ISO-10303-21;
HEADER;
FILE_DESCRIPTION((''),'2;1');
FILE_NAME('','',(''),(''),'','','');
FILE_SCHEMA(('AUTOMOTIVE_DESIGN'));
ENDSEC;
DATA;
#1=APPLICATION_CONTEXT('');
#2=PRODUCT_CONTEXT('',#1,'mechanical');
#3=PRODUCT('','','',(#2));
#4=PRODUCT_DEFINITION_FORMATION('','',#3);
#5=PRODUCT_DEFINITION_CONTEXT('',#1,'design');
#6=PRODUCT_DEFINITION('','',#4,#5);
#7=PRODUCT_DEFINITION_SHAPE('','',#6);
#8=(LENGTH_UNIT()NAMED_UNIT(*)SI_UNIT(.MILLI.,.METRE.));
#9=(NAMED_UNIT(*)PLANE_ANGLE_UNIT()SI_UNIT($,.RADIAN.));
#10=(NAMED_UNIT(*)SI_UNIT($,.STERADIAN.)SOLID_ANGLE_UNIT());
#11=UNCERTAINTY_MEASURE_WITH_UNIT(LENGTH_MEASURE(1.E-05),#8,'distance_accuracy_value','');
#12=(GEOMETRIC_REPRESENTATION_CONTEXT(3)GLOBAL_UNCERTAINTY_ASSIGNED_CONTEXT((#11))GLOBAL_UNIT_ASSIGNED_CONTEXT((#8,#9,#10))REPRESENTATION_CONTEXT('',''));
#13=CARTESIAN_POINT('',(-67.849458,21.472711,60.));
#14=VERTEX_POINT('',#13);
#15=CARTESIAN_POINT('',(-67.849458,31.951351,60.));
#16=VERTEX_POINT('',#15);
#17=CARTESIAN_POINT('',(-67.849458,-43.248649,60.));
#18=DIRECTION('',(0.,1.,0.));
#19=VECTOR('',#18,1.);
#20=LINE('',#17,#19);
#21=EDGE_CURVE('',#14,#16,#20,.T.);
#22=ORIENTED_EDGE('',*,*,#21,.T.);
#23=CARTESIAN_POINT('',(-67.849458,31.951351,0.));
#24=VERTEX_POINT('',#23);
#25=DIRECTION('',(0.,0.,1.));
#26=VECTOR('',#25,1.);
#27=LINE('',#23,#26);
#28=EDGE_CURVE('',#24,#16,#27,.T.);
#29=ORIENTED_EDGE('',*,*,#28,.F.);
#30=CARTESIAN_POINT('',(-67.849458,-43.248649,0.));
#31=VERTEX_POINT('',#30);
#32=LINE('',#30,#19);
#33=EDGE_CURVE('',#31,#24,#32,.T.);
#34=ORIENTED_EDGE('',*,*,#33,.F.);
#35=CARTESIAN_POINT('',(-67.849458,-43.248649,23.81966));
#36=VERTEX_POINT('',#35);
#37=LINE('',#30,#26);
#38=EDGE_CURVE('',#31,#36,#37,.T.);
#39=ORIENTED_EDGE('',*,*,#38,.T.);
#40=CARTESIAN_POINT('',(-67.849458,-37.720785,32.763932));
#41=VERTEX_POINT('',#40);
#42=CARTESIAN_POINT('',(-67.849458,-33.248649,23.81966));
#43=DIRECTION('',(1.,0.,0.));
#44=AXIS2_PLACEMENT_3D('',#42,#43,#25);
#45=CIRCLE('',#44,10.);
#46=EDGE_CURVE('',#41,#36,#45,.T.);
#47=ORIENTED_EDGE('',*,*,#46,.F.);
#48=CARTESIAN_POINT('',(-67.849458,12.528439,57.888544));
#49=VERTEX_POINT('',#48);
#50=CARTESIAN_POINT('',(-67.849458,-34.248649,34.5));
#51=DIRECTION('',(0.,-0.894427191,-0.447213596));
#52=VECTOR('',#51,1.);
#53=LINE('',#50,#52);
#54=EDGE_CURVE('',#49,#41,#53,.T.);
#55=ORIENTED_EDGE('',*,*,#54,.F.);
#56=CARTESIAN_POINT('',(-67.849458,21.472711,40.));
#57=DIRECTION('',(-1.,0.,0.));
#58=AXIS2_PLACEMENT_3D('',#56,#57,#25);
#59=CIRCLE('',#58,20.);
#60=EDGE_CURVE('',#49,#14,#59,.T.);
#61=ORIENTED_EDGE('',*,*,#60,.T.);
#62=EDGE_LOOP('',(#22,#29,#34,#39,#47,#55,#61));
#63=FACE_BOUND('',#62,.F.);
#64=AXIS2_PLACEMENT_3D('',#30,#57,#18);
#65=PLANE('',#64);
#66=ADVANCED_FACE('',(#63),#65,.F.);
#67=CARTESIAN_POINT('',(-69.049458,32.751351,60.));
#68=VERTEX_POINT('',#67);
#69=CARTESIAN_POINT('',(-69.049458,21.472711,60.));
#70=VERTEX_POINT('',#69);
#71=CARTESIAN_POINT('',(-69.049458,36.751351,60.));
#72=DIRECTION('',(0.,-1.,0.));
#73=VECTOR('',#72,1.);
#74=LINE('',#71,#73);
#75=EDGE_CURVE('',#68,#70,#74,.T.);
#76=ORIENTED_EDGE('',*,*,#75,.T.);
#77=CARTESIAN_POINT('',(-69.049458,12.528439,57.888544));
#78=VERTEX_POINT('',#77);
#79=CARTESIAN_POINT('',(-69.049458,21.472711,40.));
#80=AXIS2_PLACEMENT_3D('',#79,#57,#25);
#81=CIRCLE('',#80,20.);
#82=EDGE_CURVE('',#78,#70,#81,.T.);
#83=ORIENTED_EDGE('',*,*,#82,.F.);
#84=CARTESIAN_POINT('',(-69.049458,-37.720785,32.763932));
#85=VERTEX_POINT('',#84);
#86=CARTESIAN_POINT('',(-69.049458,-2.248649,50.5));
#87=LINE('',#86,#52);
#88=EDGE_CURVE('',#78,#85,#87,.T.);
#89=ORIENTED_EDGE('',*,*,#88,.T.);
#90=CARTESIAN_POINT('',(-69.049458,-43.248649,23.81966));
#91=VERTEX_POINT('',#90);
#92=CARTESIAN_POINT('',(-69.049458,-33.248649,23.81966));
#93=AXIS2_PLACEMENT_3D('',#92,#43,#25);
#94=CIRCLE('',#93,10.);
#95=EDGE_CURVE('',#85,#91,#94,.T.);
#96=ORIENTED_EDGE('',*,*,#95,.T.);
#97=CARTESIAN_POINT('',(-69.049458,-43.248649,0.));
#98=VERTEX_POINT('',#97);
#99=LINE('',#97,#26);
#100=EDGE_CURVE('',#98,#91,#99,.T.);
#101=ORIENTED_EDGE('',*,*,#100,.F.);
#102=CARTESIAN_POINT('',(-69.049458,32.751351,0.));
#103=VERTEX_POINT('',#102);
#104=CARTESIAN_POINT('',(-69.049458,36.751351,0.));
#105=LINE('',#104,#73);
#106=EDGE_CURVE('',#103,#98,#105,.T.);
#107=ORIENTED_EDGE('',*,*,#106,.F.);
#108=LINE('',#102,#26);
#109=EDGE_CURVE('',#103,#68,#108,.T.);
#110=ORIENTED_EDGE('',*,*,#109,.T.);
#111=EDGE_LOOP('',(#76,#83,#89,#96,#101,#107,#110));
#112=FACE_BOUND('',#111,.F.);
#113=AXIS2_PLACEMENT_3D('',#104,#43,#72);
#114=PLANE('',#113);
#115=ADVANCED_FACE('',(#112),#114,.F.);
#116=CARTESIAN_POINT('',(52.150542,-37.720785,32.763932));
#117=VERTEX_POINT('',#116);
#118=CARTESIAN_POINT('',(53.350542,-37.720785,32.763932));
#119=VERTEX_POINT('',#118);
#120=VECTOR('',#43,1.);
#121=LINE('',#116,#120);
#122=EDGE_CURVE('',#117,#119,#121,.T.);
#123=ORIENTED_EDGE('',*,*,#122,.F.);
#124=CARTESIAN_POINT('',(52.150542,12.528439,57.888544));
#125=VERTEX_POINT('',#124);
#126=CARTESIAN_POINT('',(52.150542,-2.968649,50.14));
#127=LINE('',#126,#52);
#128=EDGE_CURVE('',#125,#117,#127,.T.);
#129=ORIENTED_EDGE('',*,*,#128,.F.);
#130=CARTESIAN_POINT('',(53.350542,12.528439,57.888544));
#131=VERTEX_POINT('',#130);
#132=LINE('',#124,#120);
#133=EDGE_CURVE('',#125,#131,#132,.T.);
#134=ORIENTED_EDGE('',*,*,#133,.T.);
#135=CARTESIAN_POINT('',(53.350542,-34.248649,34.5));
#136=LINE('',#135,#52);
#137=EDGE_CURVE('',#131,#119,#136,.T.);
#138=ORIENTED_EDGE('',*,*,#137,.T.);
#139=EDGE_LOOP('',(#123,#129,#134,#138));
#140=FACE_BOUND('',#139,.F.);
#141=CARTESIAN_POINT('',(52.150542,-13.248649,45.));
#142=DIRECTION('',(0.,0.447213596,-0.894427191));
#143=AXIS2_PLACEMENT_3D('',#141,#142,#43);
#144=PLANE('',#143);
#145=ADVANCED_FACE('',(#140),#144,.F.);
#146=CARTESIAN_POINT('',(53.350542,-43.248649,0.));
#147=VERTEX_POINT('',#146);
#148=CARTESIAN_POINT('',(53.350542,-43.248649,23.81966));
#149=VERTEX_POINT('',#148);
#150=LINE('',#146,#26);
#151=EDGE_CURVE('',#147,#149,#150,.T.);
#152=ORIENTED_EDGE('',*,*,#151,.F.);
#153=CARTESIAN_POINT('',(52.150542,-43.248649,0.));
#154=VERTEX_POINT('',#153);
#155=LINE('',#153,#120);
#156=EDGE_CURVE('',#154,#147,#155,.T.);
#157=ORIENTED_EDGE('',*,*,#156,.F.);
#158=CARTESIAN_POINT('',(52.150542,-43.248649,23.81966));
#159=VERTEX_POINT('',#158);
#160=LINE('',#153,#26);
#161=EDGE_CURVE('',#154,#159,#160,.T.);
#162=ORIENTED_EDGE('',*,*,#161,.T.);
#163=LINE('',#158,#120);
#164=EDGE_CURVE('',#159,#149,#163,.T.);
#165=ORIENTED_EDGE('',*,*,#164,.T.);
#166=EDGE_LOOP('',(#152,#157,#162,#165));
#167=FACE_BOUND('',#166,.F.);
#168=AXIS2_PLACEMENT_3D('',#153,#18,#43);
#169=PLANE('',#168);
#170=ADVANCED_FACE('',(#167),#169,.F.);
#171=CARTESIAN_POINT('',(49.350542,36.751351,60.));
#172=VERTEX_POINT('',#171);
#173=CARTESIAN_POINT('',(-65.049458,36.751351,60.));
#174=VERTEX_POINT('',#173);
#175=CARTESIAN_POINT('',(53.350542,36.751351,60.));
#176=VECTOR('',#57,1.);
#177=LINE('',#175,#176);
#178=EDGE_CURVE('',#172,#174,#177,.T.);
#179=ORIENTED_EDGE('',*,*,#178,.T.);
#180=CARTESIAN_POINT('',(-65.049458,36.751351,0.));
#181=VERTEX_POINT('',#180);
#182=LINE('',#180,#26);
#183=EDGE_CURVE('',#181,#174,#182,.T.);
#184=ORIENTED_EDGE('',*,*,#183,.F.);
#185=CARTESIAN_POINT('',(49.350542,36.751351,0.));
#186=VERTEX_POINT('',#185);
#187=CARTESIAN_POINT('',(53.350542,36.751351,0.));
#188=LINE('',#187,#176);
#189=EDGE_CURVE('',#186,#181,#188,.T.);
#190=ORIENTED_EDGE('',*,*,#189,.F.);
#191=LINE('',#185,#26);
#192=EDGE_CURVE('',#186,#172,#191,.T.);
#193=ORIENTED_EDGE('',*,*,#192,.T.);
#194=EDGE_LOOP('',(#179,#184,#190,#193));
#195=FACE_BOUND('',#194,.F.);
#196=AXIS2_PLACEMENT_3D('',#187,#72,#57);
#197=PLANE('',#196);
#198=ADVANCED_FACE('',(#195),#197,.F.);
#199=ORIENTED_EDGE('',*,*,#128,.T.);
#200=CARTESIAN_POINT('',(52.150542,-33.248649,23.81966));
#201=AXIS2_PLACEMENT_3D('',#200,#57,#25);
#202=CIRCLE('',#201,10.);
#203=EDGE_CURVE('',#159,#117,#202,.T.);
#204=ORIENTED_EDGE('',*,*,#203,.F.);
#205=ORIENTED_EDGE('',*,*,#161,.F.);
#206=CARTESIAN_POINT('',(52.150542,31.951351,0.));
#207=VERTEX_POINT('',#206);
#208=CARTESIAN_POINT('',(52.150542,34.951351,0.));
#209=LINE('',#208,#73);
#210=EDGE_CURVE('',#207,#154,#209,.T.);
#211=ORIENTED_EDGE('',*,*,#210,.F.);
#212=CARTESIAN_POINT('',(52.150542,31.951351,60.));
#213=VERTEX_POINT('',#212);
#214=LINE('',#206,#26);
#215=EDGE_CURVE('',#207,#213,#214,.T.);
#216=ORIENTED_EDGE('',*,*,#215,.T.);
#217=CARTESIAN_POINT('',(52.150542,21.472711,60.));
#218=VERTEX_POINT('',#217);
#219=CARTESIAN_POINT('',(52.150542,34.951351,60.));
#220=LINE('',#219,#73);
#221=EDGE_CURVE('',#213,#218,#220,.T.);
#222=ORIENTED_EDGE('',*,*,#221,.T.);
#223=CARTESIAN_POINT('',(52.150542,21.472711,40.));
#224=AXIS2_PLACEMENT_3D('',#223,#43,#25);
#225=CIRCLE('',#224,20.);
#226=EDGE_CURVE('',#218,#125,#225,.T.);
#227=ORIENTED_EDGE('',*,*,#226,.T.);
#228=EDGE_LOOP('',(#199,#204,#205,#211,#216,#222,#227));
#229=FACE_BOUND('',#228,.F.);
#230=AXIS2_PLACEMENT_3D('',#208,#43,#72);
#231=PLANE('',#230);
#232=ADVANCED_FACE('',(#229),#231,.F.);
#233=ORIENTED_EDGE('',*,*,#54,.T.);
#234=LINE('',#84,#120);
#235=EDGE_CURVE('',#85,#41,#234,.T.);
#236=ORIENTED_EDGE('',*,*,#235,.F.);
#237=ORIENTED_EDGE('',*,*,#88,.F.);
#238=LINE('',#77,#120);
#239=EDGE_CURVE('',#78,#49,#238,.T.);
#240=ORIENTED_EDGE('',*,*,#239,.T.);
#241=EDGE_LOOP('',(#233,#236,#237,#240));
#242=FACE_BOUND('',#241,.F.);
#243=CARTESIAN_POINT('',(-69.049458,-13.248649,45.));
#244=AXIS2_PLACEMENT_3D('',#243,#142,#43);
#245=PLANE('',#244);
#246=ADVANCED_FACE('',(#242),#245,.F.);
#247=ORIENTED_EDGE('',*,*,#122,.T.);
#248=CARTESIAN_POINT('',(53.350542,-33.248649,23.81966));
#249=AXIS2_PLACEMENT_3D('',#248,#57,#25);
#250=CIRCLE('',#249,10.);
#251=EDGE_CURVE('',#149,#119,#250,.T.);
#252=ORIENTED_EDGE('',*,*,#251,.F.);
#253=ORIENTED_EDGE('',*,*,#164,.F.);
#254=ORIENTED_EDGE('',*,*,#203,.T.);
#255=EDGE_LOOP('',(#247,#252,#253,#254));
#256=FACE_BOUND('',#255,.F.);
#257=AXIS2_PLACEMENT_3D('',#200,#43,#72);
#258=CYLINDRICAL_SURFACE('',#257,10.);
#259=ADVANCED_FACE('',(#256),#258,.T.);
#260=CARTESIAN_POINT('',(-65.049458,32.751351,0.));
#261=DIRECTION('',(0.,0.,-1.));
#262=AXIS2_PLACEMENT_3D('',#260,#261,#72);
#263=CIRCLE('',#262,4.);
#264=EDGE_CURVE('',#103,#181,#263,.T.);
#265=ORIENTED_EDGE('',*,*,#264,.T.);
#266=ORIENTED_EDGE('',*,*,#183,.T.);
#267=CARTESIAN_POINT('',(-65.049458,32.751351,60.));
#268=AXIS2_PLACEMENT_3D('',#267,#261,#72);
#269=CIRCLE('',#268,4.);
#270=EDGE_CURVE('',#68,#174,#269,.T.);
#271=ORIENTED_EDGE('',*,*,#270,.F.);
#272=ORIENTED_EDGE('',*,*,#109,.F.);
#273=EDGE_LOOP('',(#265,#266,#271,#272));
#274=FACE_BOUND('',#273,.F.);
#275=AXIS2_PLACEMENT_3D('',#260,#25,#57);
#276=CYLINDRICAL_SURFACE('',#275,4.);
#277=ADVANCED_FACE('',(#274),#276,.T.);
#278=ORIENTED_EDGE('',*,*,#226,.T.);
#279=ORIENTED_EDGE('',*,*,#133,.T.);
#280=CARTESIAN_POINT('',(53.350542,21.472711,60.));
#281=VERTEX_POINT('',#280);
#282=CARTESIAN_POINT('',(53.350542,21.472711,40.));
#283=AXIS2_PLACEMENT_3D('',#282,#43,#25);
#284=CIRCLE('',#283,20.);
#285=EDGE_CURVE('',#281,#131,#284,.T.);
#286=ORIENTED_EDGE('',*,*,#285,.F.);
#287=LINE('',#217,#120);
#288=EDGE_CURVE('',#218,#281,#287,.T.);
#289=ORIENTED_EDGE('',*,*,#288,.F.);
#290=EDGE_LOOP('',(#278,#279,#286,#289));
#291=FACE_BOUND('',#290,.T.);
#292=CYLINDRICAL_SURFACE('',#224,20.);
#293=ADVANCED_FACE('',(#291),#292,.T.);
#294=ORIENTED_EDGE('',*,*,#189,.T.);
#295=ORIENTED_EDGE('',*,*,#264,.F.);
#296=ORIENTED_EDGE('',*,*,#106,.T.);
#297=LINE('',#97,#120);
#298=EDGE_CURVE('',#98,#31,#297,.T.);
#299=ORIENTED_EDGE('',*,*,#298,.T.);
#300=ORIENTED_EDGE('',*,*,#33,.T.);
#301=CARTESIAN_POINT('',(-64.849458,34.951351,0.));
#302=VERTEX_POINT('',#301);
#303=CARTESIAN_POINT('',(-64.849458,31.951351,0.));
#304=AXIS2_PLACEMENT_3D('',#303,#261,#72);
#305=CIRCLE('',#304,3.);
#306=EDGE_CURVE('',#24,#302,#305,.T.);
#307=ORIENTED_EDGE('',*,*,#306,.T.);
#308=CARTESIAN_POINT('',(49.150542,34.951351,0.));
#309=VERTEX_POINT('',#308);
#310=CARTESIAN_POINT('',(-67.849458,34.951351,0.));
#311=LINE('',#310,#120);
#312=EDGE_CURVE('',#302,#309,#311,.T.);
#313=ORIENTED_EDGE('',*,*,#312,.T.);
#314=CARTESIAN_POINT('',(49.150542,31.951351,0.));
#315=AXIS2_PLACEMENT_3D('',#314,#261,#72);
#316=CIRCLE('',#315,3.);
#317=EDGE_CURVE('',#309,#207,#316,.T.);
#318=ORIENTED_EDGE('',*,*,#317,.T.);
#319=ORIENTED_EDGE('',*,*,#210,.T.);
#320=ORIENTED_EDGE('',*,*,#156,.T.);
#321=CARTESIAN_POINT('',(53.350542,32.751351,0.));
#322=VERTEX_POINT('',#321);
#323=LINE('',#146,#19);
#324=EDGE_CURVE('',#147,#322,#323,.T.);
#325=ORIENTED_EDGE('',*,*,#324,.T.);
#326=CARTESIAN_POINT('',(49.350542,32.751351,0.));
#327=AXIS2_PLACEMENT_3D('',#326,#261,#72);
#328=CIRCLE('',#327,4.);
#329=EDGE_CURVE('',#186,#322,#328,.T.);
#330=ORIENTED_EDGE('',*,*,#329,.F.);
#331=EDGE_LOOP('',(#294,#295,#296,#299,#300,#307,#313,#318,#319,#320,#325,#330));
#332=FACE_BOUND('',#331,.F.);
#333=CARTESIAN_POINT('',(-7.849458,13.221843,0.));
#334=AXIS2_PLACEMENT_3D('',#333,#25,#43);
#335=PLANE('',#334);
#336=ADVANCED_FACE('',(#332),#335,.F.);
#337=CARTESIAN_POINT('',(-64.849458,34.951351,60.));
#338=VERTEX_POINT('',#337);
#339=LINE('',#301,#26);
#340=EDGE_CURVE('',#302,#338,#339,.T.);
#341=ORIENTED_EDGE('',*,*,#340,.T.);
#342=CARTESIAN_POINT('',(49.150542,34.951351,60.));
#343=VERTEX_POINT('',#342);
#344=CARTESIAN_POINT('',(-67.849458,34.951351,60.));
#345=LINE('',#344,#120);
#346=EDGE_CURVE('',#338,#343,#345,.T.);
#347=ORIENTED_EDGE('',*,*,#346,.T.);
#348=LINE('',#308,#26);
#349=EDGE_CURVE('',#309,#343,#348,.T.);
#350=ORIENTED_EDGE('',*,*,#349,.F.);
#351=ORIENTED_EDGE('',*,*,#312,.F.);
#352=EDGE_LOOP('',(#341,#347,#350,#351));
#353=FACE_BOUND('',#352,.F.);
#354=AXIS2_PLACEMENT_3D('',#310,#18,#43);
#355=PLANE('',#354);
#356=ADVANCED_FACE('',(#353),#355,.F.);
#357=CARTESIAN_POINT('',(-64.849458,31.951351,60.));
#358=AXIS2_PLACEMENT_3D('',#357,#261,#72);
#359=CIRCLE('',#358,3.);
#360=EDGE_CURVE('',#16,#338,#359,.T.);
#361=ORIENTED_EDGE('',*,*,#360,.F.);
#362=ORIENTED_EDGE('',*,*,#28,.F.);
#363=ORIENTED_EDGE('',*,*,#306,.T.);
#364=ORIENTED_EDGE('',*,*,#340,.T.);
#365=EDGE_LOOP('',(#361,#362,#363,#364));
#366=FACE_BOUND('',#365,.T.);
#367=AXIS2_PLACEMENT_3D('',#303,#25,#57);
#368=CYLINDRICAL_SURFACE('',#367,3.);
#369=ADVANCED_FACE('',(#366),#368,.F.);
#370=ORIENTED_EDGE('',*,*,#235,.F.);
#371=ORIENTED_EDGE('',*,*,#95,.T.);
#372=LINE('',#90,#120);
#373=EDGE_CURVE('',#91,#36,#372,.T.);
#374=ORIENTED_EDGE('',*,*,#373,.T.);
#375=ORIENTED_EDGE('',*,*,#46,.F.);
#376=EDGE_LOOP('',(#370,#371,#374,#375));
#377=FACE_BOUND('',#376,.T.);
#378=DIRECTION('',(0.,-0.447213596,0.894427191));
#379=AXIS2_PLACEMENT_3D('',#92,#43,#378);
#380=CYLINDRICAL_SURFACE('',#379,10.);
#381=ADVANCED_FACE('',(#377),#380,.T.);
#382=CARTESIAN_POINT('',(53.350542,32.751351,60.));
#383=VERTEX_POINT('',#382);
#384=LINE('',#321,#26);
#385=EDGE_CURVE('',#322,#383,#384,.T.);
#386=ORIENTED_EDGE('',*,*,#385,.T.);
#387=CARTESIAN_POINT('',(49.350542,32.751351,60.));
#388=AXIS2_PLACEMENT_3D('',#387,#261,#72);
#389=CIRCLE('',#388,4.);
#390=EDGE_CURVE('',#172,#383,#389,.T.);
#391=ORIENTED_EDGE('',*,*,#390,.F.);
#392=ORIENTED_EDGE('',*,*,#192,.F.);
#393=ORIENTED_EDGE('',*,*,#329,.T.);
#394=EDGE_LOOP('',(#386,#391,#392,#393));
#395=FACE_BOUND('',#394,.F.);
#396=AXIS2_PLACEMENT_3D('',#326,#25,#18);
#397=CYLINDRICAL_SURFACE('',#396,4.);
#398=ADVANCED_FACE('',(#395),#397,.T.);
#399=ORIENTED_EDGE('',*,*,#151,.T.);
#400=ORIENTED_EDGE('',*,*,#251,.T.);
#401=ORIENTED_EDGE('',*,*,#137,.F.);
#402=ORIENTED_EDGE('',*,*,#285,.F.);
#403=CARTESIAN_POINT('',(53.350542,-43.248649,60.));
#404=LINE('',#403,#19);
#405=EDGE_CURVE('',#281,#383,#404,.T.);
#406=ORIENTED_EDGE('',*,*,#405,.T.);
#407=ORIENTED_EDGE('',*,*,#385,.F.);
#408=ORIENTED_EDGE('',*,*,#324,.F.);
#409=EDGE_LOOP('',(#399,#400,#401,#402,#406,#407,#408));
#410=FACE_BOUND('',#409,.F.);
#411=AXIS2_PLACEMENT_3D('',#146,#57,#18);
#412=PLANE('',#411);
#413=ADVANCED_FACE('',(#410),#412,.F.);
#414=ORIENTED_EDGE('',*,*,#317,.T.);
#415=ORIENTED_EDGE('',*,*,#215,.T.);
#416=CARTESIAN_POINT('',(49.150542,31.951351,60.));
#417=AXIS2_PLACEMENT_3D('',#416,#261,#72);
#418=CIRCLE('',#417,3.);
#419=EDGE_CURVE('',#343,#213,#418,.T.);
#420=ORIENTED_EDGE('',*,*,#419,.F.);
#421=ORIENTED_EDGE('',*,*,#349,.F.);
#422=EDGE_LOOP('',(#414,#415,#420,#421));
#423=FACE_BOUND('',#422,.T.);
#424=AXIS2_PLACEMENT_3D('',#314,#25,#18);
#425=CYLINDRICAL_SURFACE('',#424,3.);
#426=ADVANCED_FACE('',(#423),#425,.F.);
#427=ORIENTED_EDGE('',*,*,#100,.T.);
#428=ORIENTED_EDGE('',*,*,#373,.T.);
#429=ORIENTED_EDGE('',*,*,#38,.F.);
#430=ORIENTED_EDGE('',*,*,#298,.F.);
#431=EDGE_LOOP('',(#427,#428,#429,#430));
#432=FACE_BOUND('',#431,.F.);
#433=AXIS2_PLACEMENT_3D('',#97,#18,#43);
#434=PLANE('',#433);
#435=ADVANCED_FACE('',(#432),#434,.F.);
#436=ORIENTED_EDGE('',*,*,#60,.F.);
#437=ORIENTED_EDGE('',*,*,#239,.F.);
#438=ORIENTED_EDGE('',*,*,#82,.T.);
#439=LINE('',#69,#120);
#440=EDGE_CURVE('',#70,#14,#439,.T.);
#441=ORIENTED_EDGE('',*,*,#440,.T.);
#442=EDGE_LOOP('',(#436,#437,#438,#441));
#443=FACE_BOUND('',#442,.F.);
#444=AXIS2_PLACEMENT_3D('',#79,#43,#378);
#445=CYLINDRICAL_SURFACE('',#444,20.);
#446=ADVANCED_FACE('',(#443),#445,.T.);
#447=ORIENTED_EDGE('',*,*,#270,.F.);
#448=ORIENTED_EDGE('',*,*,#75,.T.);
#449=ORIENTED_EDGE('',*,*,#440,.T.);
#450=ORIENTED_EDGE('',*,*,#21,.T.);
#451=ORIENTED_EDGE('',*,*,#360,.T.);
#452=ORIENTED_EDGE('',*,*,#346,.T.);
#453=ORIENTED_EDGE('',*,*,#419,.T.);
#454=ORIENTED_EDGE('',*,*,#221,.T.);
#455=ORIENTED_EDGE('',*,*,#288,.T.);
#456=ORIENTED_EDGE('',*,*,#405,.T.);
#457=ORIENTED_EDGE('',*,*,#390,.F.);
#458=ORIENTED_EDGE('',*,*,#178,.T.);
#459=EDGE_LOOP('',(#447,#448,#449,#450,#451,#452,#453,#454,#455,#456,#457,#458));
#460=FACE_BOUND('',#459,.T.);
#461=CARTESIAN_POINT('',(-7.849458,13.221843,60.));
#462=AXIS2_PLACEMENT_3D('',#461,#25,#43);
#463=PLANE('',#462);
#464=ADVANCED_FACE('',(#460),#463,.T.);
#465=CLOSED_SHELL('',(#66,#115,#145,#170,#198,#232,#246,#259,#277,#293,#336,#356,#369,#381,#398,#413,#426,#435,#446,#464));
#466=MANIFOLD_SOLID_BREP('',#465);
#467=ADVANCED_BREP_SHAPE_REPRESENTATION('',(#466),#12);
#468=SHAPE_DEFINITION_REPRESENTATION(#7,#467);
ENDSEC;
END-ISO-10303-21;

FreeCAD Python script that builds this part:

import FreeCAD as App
import Part
import Sketcher
Q = App.Units.Quantity


def edges_at(feature, points):
    """Names of the edges that pass closest to the given points."""
    edges = feature.Shape.Edges
    near = lambda p: min(range(len(edges)), key=lambda i: edges[i].distToShape(Part.Vertex(*p))[0])
    return sorted({f"Edge{near(p) + 1}" for p in points})


def add_polygon(sketch, points):
    """Adds a closed chain of lines whose ends are joined by coincident constraints."""
    first, n = sketch.GeometryCount, len(points)
    for a, b in zip(points, points[1:] + points[:1]):
        sketch.addGeometry(Part.LineSegment(App.Vector(*a, 0), App.Vector(*b, 0)), False)
    for i in range(n):
        sketch.addConstraint(Sketcher.Constraint("Coincident", first + i, 2, first + (i + 1) % n, 1))

doc = App.newDocument("Part")
params = doc.addObject("Spreadsheet::Sheet", "Params")
for row, (alias, value) in enumerate([
    ("sketch1_width", "120 mm"),
    ("sketch1_height", "80 mm"),
    ("sketch1_width2", "1.2 mm"),
    ("sketch1_height2", "78.2 mm"),
    ("pad1_length", "60 mm"),
    ("chamfer_size", "60 mm"),
    ("chamfer_size2", "30 mm"),
    ("fillet_radius", "20 mm"),
    ("fillet2_radius", "10 mm"),
    ("fillet3_radius", "3 mm"),
    ("fillet4_radius", "4 mm"),
], start=1):
    params.set(f"A{row}", alias)
    params.set(f"B{row}", "=" + value)
    params.setAlias(f"B{row}", alias)

body = doc.addObject("PartDesign::Body", "Body")

sketch1 = body.newObject("Sketcher::SketchObject", "Sketch")
sketch1.AttachmentSupport = (doc.getObject("XY_Plane"), [""])
sketch1.MapMode = "FlatFace"
add_polygon(sketch1, [(-69.049458, 36.751351), (-69.049458, -43.248649), (-67.849458, -43.248649), (-67.849458, 34.951351), (52.150542, 34.951351), (52.150542, -43.248649), (53.350542, -43.248649), (53.350542, 36.751351)])
sketch1.addConstraint([
    Sketcher.Constraint("Vertical", 0),
    Sketcher.Constraint("Horizontal", 1),
    Sketcher.Constraint("Vertical", 2),
    Sketcher.Constraint("Horizontal", 3),
    Sketcher.Constraint("Vertical", 4),
    Sketcher.Constraint("Horizontal", 5),
    Sketcher.Constraint("Vertical", 6),
    Sketcher.Constraint("Horizontal", 7),
    Sketcher.Constraint("Horizontal", 1, 2, 4, 2),
    Sketcher.Constraint("Equal", 1, 5),
    Sketcher.Constraint("DistanceX", 3, 1, 3, 2, Q("120 mm")),
    Sketcher.Constraint("DistanceY", 0, 2, 0, 1, Q("80 mm")),
    Sketcher.Constraint("DistanceX", 1, 1, 1, 2, Q("1.2 mm")),
    Sketcher.Constraint("DistanceY", 2, 1, 2, 2, Q("78.2 mm")),
    Sketcher.Constraint("DistanceX", 0, 2, -1, 1, Q("69.049458 mm")),
    Sketcher.Constraint("DistanceY", 0, 2, -1, 1, Q("43.248649 mm")),
])
sketch1.setExpression("Constraints[18]", "Params.sketch1_width")
sketch1.setExpression("Constraints[19]", "Params.sketch1_height")
sketch1.setExpression("Constraints[20]", "Params.sketch1_width2")
sketch1.setExpression("Constraints[21]", "Params.sketch1_height2")
pad1 = body.newObject("PartDesign::Pad", "Pad")
pad1.Profile = sketch1
pad1.setExpression("Length", "Params.pad1_length")
doc.recompute()

chamfer = body.newObject("PartDesign::Chamfer", "Chamfer")
chamfer.Base = (pad1, edges_at(pad1, [(-68.449, -43.249, 60), (52.751, -43.249, 60)]))
chamfer.ChamferType = "Two distances"
chamfer.setExpression("Size", "Params.chamfer_size")
chamfer.setExpression("Size2", "Params.chamfer_size2")
chamfer.FlipDirection = True
doc.recompute()

fillet = body.newObject("PartDesign::Fillet", "Fillet")
fillet.Base = (chamfer, edges_at(chamfer, [(-68.449, 16.751, 60), (52.751, 16.751, 60)]))
fillet.setExpression("Radius", "Params.fillet_radius")
doc.recompute()

fillet2 = body.newObject("PartDesign::Fillet", "Fillet001")
fillet2.Base = (fillet, edges_at(fillet, [(-68.449, -43.249, 30), (52.751, -43.249, 30)]))
fillet2.setExpression("Radius", "Params.fillet2_radius")
doc.recompute()

fillet3 = body.newObject("PartDesign::Fillet", "Fillet002")
fillet3.Base = (fillet2, edges_at(fillet2, [(-67.849, 34.951, 30), (52.151, 34.951, 30)]))
fillet3.setExpression("Radius", "Params.fillet3_radius")
doc.recompute()

fillet4 = body.newObject("PartDesign::Fillet", "Fillet003")
fillet4.Base = (fillet3, edges_at(fillet3, [(53.351, 36.751, 30), (-69.049, 36.751, 30)]))
fillet4.setExpression("Radius", "Params.fillet4_radius")

doc.recompute()
